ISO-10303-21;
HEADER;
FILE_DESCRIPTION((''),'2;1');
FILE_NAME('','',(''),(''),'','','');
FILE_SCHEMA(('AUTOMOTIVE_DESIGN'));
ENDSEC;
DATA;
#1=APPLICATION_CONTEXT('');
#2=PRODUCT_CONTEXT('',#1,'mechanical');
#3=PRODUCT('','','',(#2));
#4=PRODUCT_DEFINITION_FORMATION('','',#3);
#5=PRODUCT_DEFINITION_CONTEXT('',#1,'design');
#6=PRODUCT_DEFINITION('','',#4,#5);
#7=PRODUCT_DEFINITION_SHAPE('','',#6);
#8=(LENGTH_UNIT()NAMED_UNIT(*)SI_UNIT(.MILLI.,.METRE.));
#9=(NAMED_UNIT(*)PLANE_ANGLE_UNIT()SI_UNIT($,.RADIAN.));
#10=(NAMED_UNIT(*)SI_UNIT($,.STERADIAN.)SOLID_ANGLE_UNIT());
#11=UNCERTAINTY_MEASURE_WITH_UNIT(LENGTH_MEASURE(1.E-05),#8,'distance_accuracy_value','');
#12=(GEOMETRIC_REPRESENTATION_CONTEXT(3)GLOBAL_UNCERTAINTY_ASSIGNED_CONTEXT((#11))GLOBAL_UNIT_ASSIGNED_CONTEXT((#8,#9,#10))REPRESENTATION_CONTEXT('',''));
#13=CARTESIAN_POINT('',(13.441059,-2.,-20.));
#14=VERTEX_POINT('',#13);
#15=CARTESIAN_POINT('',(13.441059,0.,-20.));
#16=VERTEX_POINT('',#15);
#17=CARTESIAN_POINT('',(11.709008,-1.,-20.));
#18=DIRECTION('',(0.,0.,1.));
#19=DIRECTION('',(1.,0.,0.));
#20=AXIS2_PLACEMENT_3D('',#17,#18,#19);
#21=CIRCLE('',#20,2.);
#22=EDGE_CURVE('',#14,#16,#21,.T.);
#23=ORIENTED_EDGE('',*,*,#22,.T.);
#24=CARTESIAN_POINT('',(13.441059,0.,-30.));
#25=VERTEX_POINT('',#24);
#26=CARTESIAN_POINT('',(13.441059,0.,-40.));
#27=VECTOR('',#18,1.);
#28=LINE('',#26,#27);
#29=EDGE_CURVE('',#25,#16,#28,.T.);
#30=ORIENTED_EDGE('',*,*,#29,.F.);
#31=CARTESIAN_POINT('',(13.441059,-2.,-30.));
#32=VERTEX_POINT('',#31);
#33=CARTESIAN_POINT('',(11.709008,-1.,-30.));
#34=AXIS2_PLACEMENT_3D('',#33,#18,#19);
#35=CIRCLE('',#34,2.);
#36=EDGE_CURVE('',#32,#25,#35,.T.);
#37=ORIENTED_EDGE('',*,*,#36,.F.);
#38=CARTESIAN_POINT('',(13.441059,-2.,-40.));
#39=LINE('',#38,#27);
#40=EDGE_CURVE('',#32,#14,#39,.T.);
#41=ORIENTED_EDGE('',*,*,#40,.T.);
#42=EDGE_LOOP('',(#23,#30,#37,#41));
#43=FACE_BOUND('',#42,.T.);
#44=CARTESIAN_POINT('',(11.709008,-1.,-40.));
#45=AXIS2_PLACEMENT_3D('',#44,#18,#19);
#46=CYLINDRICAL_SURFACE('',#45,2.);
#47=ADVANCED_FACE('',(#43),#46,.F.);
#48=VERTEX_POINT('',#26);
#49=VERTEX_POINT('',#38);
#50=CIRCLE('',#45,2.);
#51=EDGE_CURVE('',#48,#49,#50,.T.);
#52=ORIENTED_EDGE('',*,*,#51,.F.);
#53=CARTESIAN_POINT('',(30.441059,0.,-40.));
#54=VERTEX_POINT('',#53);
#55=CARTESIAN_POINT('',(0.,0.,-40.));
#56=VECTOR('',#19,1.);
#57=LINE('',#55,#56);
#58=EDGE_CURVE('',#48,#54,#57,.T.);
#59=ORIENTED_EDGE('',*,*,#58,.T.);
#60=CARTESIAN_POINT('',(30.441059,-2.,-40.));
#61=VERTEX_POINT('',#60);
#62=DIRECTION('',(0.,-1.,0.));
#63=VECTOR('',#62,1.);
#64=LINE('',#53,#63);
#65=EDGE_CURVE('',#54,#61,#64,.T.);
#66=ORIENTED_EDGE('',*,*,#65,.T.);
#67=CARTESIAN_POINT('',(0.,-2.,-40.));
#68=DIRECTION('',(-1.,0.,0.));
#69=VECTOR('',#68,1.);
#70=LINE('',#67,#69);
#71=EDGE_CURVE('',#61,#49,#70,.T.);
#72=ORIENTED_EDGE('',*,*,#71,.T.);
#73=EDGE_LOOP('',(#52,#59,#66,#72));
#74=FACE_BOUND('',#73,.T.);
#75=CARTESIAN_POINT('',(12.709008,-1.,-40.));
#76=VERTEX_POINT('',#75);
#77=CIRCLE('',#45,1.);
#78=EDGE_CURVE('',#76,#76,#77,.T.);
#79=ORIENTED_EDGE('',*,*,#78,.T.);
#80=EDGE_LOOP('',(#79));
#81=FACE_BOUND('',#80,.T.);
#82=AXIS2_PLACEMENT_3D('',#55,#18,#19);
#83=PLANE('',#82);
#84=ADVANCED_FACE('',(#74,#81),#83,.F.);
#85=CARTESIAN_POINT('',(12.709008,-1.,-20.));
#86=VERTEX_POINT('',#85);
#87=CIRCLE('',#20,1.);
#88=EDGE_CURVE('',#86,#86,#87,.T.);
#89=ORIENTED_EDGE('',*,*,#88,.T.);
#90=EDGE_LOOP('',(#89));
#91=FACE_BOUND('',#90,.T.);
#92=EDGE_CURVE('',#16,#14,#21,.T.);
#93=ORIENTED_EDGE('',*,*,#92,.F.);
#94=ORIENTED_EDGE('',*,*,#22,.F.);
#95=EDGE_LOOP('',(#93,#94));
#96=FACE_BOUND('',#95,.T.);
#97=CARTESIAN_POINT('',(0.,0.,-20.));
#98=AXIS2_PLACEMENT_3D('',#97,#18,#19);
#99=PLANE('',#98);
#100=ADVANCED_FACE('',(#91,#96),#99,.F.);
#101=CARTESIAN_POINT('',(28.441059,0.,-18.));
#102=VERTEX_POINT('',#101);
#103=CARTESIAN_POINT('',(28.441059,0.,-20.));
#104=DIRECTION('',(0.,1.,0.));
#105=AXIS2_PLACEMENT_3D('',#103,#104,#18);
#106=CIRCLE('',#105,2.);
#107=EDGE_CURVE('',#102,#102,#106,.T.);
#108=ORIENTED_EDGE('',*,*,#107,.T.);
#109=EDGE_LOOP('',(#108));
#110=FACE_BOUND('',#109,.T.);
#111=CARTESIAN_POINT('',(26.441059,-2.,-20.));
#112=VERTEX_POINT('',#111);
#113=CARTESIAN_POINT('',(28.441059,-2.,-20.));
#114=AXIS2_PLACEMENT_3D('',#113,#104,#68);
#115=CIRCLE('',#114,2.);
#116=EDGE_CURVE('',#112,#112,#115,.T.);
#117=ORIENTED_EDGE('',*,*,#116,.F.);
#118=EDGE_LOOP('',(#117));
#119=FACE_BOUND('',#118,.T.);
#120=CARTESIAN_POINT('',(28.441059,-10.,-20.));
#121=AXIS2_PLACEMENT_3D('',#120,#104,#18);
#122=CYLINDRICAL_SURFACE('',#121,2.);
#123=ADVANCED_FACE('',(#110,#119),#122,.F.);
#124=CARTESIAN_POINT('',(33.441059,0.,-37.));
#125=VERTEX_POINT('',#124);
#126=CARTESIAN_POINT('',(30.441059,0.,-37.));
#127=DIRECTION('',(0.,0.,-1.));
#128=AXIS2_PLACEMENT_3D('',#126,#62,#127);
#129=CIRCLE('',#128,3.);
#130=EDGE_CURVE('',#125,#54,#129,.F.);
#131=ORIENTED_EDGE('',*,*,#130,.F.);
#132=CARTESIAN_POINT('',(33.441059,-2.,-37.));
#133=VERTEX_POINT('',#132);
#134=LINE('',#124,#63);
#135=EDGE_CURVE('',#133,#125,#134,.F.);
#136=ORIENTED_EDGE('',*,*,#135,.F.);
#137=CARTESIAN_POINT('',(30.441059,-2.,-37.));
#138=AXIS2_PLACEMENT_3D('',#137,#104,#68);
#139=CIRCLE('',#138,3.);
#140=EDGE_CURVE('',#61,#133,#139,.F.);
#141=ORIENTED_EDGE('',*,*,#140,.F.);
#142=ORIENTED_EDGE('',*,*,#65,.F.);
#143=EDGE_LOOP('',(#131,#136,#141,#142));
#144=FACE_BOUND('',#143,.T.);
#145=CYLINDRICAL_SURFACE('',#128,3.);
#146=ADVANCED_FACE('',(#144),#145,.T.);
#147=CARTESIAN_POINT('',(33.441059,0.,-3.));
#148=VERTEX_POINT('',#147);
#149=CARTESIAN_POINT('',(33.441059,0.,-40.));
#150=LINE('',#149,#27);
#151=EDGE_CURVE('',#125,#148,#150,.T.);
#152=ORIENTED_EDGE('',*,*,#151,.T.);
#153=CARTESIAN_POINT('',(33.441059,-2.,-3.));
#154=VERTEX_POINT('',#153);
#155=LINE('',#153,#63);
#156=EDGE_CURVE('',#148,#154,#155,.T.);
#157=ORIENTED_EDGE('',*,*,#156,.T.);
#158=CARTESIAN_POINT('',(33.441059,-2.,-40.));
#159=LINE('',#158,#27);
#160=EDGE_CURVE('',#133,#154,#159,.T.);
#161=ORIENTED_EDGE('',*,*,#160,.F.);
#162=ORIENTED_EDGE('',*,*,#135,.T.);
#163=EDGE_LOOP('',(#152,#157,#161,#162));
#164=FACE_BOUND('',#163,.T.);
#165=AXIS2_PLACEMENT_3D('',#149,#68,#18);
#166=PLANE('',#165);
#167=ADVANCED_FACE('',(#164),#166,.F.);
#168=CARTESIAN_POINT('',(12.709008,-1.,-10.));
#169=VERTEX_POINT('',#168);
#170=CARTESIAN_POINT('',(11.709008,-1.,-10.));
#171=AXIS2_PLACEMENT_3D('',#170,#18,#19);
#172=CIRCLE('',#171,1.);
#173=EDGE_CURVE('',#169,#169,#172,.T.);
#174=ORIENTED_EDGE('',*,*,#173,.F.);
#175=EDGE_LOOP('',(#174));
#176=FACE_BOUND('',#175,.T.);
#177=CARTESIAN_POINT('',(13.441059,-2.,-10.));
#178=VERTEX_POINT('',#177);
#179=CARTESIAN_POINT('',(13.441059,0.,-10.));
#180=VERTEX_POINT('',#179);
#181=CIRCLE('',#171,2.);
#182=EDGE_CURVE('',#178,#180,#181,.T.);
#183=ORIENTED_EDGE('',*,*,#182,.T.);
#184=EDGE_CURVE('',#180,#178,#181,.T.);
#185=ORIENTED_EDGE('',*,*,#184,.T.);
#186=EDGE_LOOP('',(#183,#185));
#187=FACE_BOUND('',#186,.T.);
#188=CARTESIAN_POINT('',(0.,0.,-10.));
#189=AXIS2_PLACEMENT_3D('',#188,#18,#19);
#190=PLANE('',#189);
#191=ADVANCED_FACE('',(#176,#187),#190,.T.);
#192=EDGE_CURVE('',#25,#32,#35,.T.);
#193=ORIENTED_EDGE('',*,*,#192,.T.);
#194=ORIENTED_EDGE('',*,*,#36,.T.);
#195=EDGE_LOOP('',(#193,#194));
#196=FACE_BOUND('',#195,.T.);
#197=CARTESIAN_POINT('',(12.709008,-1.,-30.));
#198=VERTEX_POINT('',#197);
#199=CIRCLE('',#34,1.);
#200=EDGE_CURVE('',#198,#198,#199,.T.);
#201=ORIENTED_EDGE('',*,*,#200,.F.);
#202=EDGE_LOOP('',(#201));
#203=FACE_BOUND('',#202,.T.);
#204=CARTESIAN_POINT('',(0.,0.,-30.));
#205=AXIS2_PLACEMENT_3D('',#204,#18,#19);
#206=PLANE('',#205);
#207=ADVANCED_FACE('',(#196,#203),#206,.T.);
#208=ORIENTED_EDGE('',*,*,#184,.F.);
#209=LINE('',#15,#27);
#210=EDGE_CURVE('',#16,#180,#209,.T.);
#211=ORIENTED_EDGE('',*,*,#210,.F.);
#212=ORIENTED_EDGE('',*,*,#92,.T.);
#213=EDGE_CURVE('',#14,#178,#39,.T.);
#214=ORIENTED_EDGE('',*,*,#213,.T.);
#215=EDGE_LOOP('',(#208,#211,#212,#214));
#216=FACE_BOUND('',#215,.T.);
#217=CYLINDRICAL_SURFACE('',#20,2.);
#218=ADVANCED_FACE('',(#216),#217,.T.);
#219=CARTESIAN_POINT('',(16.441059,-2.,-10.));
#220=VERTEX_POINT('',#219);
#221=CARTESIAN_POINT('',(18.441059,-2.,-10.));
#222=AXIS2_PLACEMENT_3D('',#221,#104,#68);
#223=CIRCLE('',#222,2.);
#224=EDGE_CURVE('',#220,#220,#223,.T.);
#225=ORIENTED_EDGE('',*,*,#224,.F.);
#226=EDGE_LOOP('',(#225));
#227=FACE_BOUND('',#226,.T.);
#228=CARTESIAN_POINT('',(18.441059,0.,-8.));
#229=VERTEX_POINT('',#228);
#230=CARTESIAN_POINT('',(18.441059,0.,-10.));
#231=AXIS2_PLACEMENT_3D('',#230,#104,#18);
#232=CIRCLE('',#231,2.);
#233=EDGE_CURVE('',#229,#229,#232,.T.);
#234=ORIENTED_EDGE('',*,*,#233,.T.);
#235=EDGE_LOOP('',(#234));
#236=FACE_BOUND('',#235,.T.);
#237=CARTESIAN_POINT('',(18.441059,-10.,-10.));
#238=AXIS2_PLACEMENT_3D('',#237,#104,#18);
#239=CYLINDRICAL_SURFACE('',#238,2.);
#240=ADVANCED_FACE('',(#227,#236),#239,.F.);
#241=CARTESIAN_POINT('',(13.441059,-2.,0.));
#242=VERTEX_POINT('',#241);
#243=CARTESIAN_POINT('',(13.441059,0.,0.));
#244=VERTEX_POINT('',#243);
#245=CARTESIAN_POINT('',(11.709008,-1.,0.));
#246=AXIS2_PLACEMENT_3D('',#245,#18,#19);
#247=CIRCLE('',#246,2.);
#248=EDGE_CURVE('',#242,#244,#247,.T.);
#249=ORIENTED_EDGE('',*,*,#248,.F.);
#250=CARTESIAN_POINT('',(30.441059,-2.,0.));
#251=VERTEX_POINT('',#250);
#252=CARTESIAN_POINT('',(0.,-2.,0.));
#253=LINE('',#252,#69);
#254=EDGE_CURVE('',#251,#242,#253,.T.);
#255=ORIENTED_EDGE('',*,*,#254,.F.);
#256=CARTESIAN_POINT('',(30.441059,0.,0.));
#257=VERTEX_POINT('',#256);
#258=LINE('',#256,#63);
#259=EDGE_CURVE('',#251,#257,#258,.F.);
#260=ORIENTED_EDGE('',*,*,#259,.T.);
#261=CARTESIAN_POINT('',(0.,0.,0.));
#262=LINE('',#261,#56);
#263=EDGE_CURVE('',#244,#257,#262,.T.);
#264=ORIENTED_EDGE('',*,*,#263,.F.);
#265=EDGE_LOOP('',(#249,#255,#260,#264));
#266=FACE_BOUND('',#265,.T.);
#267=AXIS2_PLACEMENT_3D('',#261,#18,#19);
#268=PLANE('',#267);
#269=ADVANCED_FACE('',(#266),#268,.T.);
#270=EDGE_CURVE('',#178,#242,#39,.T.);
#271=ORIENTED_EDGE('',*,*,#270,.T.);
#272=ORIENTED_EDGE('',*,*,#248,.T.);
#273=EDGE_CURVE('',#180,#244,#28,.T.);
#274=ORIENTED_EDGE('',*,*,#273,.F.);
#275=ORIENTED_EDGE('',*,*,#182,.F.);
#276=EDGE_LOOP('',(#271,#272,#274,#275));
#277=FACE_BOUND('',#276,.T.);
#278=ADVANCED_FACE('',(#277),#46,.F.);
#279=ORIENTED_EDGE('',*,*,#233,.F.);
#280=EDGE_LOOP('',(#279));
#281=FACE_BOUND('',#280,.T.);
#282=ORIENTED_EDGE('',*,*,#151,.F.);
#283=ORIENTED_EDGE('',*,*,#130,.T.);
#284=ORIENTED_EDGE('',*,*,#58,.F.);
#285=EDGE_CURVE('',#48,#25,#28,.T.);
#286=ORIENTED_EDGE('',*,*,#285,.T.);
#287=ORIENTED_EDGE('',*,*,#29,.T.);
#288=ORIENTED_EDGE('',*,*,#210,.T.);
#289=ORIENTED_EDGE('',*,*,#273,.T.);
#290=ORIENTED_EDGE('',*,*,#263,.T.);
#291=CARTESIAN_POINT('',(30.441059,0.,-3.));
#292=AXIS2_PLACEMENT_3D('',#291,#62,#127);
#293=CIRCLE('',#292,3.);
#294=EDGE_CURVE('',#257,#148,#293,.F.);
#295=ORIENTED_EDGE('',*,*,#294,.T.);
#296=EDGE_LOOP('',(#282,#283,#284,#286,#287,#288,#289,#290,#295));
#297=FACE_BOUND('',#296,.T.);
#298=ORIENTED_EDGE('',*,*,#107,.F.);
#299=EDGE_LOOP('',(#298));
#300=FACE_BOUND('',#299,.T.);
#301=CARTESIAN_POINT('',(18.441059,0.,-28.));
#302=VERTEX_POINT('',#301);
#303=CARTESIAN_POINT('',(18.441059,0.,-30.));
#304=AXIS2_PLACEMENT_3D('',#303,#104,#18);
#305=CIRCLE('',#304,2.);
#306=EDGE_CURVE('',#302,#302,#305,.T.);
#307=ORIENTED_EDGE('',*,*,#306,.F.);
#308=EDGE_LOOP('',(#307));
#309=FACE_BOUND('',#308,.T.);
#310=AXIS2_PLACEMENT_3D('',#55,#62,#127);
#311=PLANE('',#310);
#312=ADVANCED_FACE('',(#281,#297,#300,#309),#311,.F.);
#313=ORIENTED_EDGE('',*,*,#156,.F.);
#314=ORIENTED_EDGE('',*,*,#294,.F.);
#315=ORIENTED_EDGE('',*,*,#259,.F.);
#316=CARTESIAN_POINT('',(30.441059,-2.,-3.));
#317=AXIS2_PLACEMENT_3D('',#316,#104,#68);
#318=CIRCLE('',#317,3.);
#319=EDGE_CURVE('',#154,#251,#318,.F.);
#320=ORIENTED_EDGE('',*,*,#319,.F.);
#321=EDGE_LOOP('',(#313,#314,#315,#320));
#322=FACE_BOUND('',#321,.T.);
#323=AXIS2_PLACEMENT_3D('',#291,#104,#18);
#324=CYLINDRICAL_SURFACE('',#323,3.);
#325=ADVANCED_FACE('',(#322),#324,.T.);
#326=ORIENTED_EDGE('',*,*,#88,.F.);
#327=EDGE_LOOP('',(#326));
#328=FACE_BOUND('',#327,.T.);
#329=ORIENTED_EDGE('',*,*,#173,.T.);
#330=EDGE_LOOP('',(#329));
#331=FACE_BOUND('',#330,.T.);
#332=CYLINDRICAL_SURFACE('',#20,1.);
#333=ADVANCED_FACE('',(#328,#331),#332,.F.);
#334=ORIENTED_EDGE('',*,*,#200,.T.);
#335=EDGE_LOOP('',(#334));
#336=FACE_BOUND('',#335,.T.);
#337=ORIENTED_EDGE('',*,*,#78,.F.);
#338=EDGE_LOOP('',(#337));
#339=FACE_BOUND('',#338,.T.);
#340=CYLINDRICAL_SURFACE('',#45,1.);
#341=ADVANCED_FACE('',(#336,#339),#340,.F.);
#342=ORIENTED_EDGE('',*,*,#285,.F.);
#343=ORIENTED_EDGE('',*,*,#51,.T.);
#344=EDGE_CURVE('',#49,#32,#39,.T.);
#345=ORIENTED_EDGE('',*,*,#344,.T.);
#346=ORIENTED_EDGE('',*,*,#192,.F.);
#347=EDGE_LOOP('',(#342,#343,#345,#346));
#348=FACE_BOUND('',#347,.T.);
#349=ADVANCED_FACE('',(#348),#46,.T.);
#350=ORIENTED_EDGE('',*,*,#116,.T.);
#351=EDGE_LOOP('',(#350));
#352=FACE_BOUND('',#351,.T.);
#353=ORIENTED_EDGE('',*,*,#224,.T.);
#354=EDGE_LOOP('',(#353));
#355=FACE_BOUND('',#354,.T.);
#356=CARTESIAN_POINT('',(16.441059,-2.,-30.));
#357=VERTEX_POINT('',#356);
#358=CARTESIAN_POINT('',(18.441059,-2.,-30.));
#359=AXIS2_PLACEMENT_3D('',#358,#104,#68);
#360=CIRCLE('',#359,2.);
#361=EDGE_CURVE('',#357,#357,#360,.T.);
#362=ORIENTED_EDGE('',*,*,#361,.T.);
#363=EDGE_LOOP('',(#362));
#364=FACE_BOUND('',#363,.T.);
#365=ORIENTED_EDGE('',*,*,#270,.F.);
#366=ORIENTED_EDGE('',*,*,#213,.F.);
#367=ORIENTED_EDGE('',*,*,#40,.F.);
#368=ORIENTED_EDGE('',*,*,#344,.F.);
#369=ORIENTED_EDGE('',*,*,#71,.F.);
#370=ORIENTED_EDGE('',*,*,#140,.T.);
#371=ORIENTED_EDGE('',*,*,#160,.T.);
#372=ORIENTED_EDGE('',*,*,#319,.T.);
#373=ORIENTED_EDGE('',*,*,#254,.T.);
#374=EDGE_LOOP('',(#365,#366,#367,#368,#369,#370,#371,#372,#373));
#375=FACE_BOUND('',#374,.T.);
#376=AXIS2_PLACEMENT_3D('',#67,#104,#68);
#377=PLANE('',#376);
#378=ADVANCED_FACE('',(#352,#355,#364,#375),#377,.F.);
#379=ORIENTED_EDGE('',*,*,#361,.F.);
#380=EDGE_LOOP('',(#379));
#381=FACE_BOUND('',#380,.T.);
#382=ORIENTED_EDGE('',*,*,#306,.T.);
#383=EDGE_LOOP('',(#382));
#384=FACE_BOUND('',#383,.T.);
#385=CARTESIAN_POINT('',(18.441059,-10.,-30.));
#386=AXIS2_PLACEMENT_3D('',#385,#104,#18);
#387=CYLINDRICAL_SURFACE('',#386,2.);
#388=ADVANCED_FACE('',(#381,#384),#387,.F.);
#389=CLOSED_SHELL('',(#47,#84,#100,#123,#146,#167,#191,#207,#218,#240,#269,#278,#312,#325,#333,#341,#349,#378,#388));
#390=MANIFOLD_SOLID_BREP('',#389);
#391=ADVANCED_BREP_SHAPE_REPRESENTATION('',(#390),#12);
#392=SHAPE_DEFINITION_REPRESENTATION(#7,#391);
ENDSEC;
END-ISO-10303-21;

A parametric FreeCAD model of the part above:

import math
import FreeCAD as App
import Part
import Sketcher

V = App.Vector
Q = App.Units.Quantity


def edges_at(feature, points):
    """Names of the edges that pass closest to the given points."""
    edges = feature.Shape.Edges
    near = lambda p: min(range(len(edges)), key=lambda i: edges[i].distToShape(Part.Vertex(*p))[0])
    return sorted({f"Edge{near(p) + 1}" for p in points})

doc = App.newDocument("Part")
body = doc.addObject("PartDesign::Body", "Body")

# Sketch on XY plane
sketch1 = doc.addObject("Sketcher::SketchObject", "Sketch")
body.addObject(sketch1)
sketch1.AttachmentSupport = (doc.XY_Plane, [""])
sketch1.MapMode = "FlatFace"
sketch1.addGeometry(Part.LineSegment(V(33.4, -2, 0), V(33.4, 0, 0)), False)
sketch1.addGeometry(Part.LineSegment(V(33.4, 0, 0), V(13.4, 0, 0)), False)
sketch1.addGeometry(Part.ArcOfCircle(Part.Circle(V(11.7, -1, 0), V(0, 0, 1), 2), math.radians(0), math.radians(30)), False)
sketch1.addGeometry(Part.ArcOfCircle(Part.Circle(V(11.7, -1, 0), V(0, 0, 1), 2), math.radians(-30), math.radians(0)), False)
sketch1.addGeometry(Part.LineSegment(V(13.4, -2, 0), V(33.4, -2, 0)), False)
sketch1.addConstraint(Sketcher.Constraint("Coincident", 0, 2, 1, 1))
sketch1.addConstraint(Sketcher.Constraint("Coincident", 1, 2, 2, 2))
sketch1.addConstraint(Sketcher.Constraint("Tangent", 2, 1, 3, 2))
sketch1.addConstraint(Sketcher.Constraint("Coincident", 3, 1, 4, 1))
sketch1.addConstraint(Sketcher.Constraint("Coincident", 4, 2, 0, 1))
sketch1.addConstraint(Sketcher.Constraint("Vertical", 0))
sketch1.addConstraint(Sketcher.Constraint("Horizontal", 1))
sketch1.addConstraint(Sketcher.Constraint("Horizontal", 4))
sketch1.addConstraint(Sketcher.Constraint("Equal", 2, 3))
sketch1.addConstraint(Sketcher.Constraint("PointOnObject", 0, 2, -1))
sketch1.addConstraint(Sketcher.Constraint("Horizontal", 3, 3, 2, 1))
sketch1.addConstraint(Sketcher.Constraint("Vertical", 1, 2, 3, 1))
sketch1.addConstraint(Sketcher.Constraint("Radius", 2, Q("2 mm")))
sketch1.addConstraint(Sketcher.Constraint("DistanceX", 1, 2, 1, 1, Q("20 mm")))
sketch1.addConstraint(Sketcher.Constraint("DistanceY", 0, 1, 0, 2, Q("2 mm")))
sketch1.addConstraint(Sketcher.Constraint("DistanceX", -1, 1, 2, 3, Q("11.709008 mm")))
pad1 = doc.addObject("PartDesign::Pad", "Pad")
body.addObject(pad1)
pad1.Profile = sketch1
pad1.Length = 40
pad1.Reversed = True

# Sketch on XY plane
sketch2 = doc.addObject("Sketcher::SketchObject", "Sketch001")
body.addObject(sketch2)
sketch2.AttachmentSupport = (doc.XY_Plane, [""])
sketch2.MapMode = "FlatFace"
sketch2.AttachmentOffset = App.Placement(V(0, 0, -10), App.Rotation())
sketch2.addGeometry(Part.Circle(V(11.7, -1, 0), V(0, 0, 1), 2), False)
sketch2.addGeometry(Part.Circle(V(11.7, -1, 0), V(0, 0, 1), 1), False)
sketch2.addConstraint(Sketcher.Constraint("Coincident", 1, 3, 0, 3))
sketch2.addConstraint(Sketcher.Constraint("Diameter", 0, Q("4 mm")))
sketch2.addConstraint(Sketcher.Constraint("Diameter", 1, Q("2 mm")))
sketch2.addConstraint(Sketcher.Constraint("DistanceY", 0, 3, -1, 1, Q("1 mm")))
sketch2.addConstraint(Sketcher.Constraint("DistanceX", -1, 1, 0, 3, Q("11.709008 mm")))
pad2 = doc.addObject("PartDesign::Pad", "Pad001")
body.addObject(pad2)
pad2.Profile = sketch2
pad2.Length = 10
pad2.Reversed = True

# Sketch on XY plane
sketch3 = doc.addObject("Sketcher::SketchObject", "Sketch002")
body.addObject(sketch3)
sketch3.AttachmentSupport = (doc.XY_Plane, [""])
sketch3.MapMode = "FlatFace"
sketch3.AttachmentOffset = App.Placement(V(0, 0, -30), App.Rotation())
sketch3.addGeometry(Part.Circle(V(11.7, -1, 0), V(0, 0, 1), 2), False)
sketch3.addGeometry(Part.Circle(V(11.7, -1, 0), V(0, 0, 1), 1), False)
sketch3.addConstraint(Sketcher.Constraint("Coincident", 1, 3, 0, 3))
sketch3.addConstraint(Sketcher.Constraint("Diameter", 0, Q("4 mm")))
sketch3.addConstraint(Sketcher.Constraint("Diameter", 1, Q("2 mm")))
sketch3.addConstraint(Sketcher.Constraint("DistanceY", 0, 3, -1, 1, Q("1 mm")))
sketch3.addConstraint(Sketcher.Constraint("DistanceX", -1, 1, 0, 3, Q("11.709008 mm")))
pad3 = doc.addObject("PartDesign::Pad", "Pad002")
body.addObject(pad3)
pad3.Profile = sketch3
pad3.Length = 10
pad3.Reversed = True

# Sketch on XZ plane
sketch4 = doc.addObject("Sketcher::SketchObject", "Sketch003")
body.addObject(sketch4)
sketch4.AttachmentSupport = (doc.XZ_Plane, [""])
sketch4.MapMode = "FlatFace"
sketch4.addGeometry(Part.Circle(V(18.4, -30, 0), V(0, 0, 1), 2), False)
sketch4.addGeometry(Part.Circle(V(18.4, -10, 0), V(0, 0, 1), 2), False)
sketch4.addGeometry(Part.Circle(V(28.4, -20, 0), V(0, 0, 1), 2), False)
sketch4.addConstraint(Sketcher.Constraint("Equal", 0, 1))
sketch4.addConstraint(Sketcher.Constraint("Equal", 1, 2))
sketch4.addConstraint(Sketcher.Constraint("Vertical", 0, 3, 1, 3))
sketch4.addConstraint(Sketcher.Constraint("Diameter", 0, Q("4 mm")))
sketch4.addConstraint(Sketcher.Constraint("DistanceY", 0, 3, -1, 1, Q("30 mm")))
sketch4.addConstraint(Sketcher.Constraint("DistanceY", 1, 3, -1, 1, Q("10 mm")))
sketch4.addConstraint(Sketcher.Constraint("DistanceY", 2, 3, -1, 1, Q("20 mm")))
sketch4.addConstraint(Sketcher.Constraint("DistanceX", 0, 3, 2, 3, Q("10 mm")))
sketch4.addConstraint(Sketcher.Constraint("DistanceX", -1, 1, 0, 3, Q("18.441059 mm")))
pocket1 = doc.addObject("PartDesign::Pocket", "Pocket")
body.addObject(pocket1)
pocket1.Profile = sketch4
pocket1.Length = 10
pocket1.Reversed = True
doc.recompute()

fillet = doc.addObject("PartDesign::Fillet", "Fillet")
body.addObject(fillet)
fillet.Base = (pocket1, edges_at(pocket1, [(33.441, -1, 0)]))
fillet.Radius = 3
doc.recompute()

fillet2 = doc.addObject("PartDesign::Fillet", "Fillet001")
body.addObject(fillet2)
fillet2.Base = (fillet, edges_at(fillet, [(33.441, -1, -40)]))
fillet2.Radius = 3

doc.recompute()
